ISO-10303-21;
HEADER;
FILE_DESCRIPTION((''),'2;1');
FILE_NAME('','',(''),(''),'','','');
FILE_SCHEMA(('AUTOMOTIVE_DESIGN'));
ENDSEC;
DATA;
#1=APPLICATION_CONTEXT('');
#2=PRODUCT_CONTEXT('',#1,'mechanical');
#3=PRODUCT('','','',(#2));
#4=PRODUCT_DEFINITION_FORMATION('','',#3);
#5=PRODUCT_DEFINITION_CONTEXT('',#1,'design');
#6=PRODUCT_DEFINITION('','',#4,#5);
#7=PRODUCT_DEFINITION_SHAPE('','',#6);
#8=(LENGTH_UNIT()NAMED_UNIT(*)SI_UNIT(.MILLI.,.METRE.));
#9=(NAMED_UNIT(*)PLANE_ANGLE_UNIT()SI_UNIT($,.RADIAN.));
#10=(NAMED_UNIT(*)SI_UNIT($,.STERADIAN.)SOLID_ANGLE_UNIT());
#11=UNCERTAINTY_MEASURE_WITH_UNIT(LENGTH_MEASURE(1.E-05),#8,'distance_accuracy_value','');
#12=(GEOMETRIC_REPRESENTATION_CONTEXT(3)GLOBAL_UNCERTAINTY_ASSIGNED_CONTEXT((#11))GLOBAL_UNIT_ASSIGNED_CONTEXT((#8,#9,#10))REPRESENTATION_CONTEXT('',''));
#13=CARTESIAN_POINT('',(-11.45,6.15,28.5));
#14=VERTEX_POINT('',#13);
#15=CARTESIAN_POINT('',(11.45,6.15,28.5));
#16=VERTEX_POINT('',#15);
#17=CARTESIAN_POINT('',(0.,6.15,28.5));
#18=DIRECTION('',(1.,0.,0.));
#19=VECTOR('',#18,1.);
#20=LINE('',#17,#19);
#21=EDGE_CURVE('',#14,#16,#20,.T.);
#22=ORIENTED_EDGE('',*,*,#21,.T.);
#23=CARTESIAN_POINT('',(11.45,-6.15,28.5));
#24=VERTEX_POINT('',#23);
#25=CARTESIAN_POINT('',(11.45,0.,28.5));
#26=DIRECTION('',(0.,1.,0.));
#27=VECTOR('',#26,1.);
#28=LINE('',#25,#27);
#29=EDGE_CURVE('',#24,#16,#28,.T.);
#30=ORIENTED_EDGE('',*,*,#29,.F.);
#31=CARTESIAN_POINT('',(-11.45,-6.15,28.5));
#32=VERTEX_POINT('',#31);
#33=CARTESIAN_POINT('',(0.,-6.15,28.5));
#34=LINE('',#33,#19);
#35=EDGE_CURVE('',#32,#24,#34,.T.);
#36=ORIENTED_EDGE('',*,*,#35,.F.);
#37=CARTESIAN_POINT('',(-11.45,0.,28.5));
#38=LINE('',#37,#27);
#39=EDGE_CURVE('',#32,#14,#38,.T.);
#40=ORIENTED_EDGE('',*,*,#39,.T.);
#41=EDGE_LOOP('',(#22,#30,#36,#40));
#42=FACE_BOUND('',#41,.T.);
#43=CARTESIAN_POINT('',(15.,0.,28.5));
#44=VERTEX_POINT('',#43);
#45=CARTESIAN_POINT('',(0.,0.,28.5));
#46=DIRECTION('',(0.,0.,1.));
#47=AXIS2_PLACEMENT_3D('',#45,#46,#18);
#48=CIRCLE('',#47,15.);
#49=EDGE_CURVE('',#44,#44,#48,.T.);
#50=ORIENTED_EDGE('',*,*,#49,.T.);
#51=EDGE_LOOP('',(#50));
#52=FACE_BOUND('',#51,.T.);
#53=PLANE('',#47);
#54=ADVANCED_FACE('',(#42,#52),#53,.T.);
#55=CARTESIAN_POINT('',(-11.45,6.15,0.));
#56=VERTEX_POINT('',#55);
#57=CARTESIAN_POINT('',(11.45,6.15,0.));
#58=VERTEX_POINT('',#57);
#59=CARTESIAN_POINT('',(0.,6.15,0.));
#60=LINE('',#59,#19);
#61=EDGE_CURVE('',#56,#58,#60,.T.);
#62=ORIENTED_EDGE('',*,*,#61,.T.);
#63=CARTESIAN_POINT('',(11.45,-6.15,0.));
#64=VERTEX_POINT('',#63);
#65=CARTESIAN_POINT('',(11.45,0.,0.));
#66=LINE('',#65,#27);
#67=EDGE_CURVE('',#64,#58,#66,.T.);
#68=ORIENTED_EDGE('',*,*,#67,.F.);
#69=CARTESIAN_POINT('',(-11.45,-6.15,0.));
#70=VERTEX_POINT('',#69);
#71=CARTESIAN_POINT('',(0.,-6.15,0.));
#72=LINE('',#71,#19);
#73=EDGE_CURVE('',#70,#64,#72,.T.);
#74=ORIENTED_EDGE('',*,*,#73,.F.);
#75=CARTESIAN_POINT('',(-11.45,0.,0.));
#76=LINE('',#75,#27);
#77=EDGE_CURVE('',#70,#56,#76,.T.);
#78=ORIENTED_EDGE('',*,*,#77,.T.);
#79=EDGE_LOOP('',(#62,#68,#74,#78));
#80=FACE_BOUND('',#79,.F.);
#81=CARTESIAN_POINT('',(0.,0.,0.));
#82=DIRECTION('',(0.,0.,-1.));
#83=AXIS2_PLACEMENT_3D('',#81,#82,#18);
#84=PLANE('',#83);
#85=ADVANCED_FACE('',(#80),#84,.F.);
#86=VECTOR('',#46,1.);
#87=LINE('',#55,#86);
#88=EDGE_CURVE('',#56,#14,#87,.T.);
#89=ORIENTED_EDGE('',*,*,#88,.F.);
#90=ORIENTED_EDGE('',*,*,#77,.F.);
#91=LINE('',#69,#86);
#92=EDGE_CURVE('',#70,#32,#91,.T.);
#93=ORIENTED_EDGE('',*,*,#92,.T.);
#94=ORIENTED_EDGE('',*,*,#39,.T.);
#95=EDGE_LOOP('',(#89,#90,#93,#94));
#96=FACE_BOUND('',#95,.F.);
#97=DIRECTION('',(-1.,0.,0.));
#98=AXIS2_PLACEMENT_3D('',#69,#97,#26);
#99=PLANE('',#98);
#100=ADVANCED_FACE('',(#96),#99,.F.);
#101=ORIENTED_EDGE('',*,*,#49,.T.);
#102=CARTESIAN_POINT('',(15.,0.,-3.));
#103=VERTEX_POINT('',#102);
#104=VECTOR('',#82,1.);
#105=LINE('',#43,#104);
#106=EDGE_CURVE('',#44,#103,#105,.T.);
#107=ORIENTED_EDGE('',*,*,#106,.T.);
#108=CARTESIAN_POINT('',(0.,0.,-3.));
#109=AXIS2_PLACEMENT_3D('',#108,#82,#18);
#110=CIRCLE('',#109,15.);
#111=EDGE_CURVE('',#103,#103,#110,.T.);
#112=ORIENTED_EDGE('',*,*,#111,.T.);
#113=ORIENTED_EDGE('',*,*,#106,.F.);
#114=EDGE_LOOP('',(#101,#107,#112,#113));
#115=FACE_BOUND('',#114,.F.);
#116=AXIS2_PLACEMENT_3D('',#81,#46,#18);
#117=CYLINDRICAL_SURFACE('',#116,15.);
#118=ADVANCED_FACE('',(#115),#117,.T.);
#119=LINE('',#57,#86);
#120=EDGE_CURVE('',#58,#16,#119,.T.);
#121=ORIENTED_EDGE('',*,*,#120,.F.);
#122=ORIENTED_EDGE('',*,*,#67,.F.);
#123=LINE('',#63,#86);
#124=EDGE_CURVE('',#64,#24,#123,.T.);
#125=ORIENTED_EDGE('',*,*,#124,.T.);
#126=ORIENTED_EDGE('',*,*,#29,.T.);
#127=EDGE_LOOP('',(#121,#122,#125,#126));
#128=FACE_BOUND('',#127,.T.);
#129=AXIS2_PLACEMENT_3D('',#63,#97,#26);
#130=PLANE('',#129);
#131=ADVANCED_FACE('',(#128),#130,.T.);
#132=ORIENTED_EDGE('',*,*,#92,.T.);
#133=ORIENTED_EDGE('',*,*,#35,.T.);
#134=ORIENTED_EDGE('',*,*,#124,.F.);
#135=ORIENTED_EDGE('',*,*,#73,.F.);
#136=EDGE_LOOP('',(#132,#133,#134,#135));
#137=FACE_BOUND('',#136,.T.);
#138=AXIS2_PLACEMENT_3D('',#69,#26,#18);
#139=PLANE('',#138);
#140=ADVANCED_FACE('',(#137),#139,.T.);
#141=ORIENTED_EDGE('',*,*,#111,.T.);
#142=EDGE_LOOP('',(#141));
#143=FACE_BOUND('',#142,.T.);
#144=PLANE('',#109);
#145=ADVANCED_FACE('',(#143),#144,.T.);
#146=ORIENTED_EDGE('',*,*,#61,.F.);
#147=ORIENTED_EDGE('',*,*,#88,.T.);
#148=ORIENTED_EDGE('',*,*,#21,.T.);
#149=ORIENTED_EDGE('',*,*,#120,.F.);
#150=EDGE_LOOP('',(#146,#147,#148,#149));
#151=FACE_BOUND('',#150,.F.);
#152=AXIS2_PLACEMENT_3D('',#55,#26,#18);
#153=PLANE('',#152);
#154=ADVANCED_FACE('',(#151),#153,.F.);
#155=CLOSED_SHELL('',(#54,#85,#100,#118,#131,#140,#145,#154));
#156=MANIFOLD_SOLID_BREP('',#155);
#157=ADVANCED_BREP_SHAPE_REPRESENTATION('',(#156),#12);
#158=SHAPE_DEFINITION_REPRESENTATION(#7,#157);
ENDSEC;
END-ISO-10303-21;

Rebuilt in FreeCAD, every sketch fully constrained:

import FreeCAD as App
import Part
import Sketcher
Q = App.Units.Quantity

doc = App.newDocument("Part")
body = doc.addObject("PartDesign::Body", "Body")

# Sketch on XY plane
sketch1 = body.newObject("Sketcher::SketchObject", "Sketch")
sketch1.AttachmentSupport = (doc.getObject("XY_Plane"), [""])
sketch1.MapMode = "FlatFace"
sketch1.addGeometry([
    Part.Circle(App.Vector(0, 0, 0), App.Vector(0, 0, 1), 15),  # 0
    Part.LineSegment(App.Vector(11.45, -6.15, 0), App.Vector(-11.45, -6.15, 0)),  # 1
    Part.LineSegment(App.Vector(-11.45, -6.15, 0), App.Vector(-11.45, 6.15, 0)),  # 2
    Part.LineSegment(App.Vector(-11.45, 6.15, 0), App.Vector(11.45, 6.15, 0)),  # 3
    Part.LineSegment(App.Vector(11.45, 6.15, 0), App.Vector(11.45, -6.15, 0)),  # 4
], False)
sketch1.addConstraint([
    Sketcher.Constraint("Coincident", 1, 2, 2, 1),
    Sketcher.Constraint("Coincident", 2, 2, 3, 1),
    Sketcher.Constraint("Coincident", 3, 2, 4, 1),
    Sketcher.Constraint("Coincident", 4, 2, 1, 1),
    Sketcher.Constraint("Horizontal", 1),
    Sketcher.Constraint("Vertical", 2),
    Sketcher.Constraint("Horizontal", 3),
    Sketcher.Constraint("Vertical", 4),
    Sketcher.Constraint("Coincident", 0, 3, -1, 1),
    Sketcher.Constraint("Symmetric", 1, 2, 3, 2, -1, 1),
    Sketcher.Constraint("Diameter", 0, Q("30 mm")),
    Sketcher.Constraint("DistanceX", 1, 2, 1, 1, Q("22.9 mm")),
    Sketcher.Constraint("DistanceY", 2, 1, 2, 2, Q("12.3 mm")),
])
pad1 = body.newObject("PartDesign::Pad", "Pad")
pad1.Profile = sketch1
pad1.Length = 28.5

# Sketch on XY plane
sketch2 = body.newObject("Sketcher::SketchObject", "Sketch001")
sketch2.AttachmentSupport = (doc.getObject("XY_Plane"), [""])
sketch2.MapMode = "FlatFace"
sketch2.addGeometry(Part.Circle(App.Vector(0, 0, 0), App.Vector(0, 0, 1), 15), False)
sketch2.addConstraint([
    Sketcher.Constraint("Coincident", 0, 3, -1, 1),
    Sketcher.Constraint("Diameter", 0, Q("30 mm")),
])
pad2 = body.newObject("PartDesign::Pad", "Pad001")
pad2.Profile = sketch2
pad2.Length = 3
pad2.Reversed = True

doc.recompute()
